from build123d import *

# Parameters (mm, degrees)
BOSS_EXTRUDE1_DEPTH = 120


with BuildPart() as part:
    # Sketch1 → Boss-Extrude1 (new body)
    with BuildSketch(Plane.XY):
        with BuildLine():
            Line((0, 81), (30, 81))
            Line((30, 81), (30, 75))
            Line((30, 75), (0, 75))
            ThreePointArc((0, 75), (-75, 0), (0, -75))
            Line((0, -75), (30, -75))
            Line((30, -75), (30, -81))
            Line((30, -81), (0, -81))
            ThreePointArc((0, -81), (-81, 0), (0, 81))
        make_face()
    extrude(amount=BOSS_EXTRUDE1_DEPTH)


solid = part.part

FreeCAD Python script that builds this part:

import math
import FreeCAD as App
import Part
import Sketcher

doc = App.newDocument("Part")
body = doc.addObject("PartDesign::Body", "Body")

sketch1 = doc.addObject("Sketcher::SketchObject", "Sketch")
body.addObject(sketch1)
sketch1.AttachmentSupport = (doc.XY_Plane, [""])
sketch1.MapMode = "FlatFace"
sketch1.addGeometry([
    Part.LineSegment(App.Vector(30, 81, 0), App.Vector(0, 81, 0)),
    Part.ArcOfCircle(Part.Circle(App.Vector(0, 0, 0), App.Vector(0, 0, 1), 81), math.radians(90), math.radians(270)),
    Part.LineSegment(App.Vector(0, -81, 0), App.Vector(30, -81, 0)),
    Part.LineSegment(App.Vector(30, -81, 0), App.Vector(30, -75, 0)),
    Part.LineSegment(App.Vector(30, -75, 0), App.Vector(0, -75, 0)),
    Part.ArcOfCircle(Part.Circle(App.Vector(0, 0, 0), App.Vector(0, 0, 1), 75), math.radians(90), math.radians(270)),
    Part.LineSegment(App.Vector(0, 75, 0), App.Vector(30, 75, 0)),
    Part.LineSegment(App.Vector(30, 75, 0), App.Vector(30, 81, 0)),
], False)
sketch1.addConstraint([
    Sketcher.Constraint("Tangent", 0, 2, 1, 1),
    Sketcher.Constraint("Tangent", 1, 2, 2, 1),
    Sketcher.Constraint("Coincident", 2, 2, 3, 1),
    Sketcher.Constraint("Coincident", 3, 2, 4, 1),
    Sketcher.Constraint("Tangent", 4, 2, 5, 2),
    Sketcher.Constraint("Tangent", 5, 1, 6, 1),
    Sketcher.Constraint("Coincident", 6, 2, 7, 1),
    Sketcher.Constraint("Coincident", 7, 2, 0, 1),
    Sketcher.Constraint("Horizontal", 0),
    Sketcher.Constraint("Horizontal", 2),
    Sketcher.Constraint("Vertical", 3),
    Sketcher.Constraint("Horizontal", 4),
    Sketcher.Constraint("Horizontal", 6),
    Sketcher.Constraint("Vertical", 7),
    Sketcher.Constraint("Coincident", 1, 3, -1, 1),
    Sketcher.Constraint("Coincident", 5, 3, -1, 1),
    Sketcher.Constraint("Vertical", 3, 2, 6, 2),
    Sketcher.Constraint("Radius", 1, 81.0),
    Sketcher.Constraint("Radius", 5, 75.0),
    Sketcher.Constraint("DistanceX", 0, 2, 0, 1, 30.0),
])
pad1 = doc.addObject("PartDesign::Pad", "Pad")
body.addObject(pad1)
pad1.Profile = sketch1
pad1.Length = 120

doc.recompute()
